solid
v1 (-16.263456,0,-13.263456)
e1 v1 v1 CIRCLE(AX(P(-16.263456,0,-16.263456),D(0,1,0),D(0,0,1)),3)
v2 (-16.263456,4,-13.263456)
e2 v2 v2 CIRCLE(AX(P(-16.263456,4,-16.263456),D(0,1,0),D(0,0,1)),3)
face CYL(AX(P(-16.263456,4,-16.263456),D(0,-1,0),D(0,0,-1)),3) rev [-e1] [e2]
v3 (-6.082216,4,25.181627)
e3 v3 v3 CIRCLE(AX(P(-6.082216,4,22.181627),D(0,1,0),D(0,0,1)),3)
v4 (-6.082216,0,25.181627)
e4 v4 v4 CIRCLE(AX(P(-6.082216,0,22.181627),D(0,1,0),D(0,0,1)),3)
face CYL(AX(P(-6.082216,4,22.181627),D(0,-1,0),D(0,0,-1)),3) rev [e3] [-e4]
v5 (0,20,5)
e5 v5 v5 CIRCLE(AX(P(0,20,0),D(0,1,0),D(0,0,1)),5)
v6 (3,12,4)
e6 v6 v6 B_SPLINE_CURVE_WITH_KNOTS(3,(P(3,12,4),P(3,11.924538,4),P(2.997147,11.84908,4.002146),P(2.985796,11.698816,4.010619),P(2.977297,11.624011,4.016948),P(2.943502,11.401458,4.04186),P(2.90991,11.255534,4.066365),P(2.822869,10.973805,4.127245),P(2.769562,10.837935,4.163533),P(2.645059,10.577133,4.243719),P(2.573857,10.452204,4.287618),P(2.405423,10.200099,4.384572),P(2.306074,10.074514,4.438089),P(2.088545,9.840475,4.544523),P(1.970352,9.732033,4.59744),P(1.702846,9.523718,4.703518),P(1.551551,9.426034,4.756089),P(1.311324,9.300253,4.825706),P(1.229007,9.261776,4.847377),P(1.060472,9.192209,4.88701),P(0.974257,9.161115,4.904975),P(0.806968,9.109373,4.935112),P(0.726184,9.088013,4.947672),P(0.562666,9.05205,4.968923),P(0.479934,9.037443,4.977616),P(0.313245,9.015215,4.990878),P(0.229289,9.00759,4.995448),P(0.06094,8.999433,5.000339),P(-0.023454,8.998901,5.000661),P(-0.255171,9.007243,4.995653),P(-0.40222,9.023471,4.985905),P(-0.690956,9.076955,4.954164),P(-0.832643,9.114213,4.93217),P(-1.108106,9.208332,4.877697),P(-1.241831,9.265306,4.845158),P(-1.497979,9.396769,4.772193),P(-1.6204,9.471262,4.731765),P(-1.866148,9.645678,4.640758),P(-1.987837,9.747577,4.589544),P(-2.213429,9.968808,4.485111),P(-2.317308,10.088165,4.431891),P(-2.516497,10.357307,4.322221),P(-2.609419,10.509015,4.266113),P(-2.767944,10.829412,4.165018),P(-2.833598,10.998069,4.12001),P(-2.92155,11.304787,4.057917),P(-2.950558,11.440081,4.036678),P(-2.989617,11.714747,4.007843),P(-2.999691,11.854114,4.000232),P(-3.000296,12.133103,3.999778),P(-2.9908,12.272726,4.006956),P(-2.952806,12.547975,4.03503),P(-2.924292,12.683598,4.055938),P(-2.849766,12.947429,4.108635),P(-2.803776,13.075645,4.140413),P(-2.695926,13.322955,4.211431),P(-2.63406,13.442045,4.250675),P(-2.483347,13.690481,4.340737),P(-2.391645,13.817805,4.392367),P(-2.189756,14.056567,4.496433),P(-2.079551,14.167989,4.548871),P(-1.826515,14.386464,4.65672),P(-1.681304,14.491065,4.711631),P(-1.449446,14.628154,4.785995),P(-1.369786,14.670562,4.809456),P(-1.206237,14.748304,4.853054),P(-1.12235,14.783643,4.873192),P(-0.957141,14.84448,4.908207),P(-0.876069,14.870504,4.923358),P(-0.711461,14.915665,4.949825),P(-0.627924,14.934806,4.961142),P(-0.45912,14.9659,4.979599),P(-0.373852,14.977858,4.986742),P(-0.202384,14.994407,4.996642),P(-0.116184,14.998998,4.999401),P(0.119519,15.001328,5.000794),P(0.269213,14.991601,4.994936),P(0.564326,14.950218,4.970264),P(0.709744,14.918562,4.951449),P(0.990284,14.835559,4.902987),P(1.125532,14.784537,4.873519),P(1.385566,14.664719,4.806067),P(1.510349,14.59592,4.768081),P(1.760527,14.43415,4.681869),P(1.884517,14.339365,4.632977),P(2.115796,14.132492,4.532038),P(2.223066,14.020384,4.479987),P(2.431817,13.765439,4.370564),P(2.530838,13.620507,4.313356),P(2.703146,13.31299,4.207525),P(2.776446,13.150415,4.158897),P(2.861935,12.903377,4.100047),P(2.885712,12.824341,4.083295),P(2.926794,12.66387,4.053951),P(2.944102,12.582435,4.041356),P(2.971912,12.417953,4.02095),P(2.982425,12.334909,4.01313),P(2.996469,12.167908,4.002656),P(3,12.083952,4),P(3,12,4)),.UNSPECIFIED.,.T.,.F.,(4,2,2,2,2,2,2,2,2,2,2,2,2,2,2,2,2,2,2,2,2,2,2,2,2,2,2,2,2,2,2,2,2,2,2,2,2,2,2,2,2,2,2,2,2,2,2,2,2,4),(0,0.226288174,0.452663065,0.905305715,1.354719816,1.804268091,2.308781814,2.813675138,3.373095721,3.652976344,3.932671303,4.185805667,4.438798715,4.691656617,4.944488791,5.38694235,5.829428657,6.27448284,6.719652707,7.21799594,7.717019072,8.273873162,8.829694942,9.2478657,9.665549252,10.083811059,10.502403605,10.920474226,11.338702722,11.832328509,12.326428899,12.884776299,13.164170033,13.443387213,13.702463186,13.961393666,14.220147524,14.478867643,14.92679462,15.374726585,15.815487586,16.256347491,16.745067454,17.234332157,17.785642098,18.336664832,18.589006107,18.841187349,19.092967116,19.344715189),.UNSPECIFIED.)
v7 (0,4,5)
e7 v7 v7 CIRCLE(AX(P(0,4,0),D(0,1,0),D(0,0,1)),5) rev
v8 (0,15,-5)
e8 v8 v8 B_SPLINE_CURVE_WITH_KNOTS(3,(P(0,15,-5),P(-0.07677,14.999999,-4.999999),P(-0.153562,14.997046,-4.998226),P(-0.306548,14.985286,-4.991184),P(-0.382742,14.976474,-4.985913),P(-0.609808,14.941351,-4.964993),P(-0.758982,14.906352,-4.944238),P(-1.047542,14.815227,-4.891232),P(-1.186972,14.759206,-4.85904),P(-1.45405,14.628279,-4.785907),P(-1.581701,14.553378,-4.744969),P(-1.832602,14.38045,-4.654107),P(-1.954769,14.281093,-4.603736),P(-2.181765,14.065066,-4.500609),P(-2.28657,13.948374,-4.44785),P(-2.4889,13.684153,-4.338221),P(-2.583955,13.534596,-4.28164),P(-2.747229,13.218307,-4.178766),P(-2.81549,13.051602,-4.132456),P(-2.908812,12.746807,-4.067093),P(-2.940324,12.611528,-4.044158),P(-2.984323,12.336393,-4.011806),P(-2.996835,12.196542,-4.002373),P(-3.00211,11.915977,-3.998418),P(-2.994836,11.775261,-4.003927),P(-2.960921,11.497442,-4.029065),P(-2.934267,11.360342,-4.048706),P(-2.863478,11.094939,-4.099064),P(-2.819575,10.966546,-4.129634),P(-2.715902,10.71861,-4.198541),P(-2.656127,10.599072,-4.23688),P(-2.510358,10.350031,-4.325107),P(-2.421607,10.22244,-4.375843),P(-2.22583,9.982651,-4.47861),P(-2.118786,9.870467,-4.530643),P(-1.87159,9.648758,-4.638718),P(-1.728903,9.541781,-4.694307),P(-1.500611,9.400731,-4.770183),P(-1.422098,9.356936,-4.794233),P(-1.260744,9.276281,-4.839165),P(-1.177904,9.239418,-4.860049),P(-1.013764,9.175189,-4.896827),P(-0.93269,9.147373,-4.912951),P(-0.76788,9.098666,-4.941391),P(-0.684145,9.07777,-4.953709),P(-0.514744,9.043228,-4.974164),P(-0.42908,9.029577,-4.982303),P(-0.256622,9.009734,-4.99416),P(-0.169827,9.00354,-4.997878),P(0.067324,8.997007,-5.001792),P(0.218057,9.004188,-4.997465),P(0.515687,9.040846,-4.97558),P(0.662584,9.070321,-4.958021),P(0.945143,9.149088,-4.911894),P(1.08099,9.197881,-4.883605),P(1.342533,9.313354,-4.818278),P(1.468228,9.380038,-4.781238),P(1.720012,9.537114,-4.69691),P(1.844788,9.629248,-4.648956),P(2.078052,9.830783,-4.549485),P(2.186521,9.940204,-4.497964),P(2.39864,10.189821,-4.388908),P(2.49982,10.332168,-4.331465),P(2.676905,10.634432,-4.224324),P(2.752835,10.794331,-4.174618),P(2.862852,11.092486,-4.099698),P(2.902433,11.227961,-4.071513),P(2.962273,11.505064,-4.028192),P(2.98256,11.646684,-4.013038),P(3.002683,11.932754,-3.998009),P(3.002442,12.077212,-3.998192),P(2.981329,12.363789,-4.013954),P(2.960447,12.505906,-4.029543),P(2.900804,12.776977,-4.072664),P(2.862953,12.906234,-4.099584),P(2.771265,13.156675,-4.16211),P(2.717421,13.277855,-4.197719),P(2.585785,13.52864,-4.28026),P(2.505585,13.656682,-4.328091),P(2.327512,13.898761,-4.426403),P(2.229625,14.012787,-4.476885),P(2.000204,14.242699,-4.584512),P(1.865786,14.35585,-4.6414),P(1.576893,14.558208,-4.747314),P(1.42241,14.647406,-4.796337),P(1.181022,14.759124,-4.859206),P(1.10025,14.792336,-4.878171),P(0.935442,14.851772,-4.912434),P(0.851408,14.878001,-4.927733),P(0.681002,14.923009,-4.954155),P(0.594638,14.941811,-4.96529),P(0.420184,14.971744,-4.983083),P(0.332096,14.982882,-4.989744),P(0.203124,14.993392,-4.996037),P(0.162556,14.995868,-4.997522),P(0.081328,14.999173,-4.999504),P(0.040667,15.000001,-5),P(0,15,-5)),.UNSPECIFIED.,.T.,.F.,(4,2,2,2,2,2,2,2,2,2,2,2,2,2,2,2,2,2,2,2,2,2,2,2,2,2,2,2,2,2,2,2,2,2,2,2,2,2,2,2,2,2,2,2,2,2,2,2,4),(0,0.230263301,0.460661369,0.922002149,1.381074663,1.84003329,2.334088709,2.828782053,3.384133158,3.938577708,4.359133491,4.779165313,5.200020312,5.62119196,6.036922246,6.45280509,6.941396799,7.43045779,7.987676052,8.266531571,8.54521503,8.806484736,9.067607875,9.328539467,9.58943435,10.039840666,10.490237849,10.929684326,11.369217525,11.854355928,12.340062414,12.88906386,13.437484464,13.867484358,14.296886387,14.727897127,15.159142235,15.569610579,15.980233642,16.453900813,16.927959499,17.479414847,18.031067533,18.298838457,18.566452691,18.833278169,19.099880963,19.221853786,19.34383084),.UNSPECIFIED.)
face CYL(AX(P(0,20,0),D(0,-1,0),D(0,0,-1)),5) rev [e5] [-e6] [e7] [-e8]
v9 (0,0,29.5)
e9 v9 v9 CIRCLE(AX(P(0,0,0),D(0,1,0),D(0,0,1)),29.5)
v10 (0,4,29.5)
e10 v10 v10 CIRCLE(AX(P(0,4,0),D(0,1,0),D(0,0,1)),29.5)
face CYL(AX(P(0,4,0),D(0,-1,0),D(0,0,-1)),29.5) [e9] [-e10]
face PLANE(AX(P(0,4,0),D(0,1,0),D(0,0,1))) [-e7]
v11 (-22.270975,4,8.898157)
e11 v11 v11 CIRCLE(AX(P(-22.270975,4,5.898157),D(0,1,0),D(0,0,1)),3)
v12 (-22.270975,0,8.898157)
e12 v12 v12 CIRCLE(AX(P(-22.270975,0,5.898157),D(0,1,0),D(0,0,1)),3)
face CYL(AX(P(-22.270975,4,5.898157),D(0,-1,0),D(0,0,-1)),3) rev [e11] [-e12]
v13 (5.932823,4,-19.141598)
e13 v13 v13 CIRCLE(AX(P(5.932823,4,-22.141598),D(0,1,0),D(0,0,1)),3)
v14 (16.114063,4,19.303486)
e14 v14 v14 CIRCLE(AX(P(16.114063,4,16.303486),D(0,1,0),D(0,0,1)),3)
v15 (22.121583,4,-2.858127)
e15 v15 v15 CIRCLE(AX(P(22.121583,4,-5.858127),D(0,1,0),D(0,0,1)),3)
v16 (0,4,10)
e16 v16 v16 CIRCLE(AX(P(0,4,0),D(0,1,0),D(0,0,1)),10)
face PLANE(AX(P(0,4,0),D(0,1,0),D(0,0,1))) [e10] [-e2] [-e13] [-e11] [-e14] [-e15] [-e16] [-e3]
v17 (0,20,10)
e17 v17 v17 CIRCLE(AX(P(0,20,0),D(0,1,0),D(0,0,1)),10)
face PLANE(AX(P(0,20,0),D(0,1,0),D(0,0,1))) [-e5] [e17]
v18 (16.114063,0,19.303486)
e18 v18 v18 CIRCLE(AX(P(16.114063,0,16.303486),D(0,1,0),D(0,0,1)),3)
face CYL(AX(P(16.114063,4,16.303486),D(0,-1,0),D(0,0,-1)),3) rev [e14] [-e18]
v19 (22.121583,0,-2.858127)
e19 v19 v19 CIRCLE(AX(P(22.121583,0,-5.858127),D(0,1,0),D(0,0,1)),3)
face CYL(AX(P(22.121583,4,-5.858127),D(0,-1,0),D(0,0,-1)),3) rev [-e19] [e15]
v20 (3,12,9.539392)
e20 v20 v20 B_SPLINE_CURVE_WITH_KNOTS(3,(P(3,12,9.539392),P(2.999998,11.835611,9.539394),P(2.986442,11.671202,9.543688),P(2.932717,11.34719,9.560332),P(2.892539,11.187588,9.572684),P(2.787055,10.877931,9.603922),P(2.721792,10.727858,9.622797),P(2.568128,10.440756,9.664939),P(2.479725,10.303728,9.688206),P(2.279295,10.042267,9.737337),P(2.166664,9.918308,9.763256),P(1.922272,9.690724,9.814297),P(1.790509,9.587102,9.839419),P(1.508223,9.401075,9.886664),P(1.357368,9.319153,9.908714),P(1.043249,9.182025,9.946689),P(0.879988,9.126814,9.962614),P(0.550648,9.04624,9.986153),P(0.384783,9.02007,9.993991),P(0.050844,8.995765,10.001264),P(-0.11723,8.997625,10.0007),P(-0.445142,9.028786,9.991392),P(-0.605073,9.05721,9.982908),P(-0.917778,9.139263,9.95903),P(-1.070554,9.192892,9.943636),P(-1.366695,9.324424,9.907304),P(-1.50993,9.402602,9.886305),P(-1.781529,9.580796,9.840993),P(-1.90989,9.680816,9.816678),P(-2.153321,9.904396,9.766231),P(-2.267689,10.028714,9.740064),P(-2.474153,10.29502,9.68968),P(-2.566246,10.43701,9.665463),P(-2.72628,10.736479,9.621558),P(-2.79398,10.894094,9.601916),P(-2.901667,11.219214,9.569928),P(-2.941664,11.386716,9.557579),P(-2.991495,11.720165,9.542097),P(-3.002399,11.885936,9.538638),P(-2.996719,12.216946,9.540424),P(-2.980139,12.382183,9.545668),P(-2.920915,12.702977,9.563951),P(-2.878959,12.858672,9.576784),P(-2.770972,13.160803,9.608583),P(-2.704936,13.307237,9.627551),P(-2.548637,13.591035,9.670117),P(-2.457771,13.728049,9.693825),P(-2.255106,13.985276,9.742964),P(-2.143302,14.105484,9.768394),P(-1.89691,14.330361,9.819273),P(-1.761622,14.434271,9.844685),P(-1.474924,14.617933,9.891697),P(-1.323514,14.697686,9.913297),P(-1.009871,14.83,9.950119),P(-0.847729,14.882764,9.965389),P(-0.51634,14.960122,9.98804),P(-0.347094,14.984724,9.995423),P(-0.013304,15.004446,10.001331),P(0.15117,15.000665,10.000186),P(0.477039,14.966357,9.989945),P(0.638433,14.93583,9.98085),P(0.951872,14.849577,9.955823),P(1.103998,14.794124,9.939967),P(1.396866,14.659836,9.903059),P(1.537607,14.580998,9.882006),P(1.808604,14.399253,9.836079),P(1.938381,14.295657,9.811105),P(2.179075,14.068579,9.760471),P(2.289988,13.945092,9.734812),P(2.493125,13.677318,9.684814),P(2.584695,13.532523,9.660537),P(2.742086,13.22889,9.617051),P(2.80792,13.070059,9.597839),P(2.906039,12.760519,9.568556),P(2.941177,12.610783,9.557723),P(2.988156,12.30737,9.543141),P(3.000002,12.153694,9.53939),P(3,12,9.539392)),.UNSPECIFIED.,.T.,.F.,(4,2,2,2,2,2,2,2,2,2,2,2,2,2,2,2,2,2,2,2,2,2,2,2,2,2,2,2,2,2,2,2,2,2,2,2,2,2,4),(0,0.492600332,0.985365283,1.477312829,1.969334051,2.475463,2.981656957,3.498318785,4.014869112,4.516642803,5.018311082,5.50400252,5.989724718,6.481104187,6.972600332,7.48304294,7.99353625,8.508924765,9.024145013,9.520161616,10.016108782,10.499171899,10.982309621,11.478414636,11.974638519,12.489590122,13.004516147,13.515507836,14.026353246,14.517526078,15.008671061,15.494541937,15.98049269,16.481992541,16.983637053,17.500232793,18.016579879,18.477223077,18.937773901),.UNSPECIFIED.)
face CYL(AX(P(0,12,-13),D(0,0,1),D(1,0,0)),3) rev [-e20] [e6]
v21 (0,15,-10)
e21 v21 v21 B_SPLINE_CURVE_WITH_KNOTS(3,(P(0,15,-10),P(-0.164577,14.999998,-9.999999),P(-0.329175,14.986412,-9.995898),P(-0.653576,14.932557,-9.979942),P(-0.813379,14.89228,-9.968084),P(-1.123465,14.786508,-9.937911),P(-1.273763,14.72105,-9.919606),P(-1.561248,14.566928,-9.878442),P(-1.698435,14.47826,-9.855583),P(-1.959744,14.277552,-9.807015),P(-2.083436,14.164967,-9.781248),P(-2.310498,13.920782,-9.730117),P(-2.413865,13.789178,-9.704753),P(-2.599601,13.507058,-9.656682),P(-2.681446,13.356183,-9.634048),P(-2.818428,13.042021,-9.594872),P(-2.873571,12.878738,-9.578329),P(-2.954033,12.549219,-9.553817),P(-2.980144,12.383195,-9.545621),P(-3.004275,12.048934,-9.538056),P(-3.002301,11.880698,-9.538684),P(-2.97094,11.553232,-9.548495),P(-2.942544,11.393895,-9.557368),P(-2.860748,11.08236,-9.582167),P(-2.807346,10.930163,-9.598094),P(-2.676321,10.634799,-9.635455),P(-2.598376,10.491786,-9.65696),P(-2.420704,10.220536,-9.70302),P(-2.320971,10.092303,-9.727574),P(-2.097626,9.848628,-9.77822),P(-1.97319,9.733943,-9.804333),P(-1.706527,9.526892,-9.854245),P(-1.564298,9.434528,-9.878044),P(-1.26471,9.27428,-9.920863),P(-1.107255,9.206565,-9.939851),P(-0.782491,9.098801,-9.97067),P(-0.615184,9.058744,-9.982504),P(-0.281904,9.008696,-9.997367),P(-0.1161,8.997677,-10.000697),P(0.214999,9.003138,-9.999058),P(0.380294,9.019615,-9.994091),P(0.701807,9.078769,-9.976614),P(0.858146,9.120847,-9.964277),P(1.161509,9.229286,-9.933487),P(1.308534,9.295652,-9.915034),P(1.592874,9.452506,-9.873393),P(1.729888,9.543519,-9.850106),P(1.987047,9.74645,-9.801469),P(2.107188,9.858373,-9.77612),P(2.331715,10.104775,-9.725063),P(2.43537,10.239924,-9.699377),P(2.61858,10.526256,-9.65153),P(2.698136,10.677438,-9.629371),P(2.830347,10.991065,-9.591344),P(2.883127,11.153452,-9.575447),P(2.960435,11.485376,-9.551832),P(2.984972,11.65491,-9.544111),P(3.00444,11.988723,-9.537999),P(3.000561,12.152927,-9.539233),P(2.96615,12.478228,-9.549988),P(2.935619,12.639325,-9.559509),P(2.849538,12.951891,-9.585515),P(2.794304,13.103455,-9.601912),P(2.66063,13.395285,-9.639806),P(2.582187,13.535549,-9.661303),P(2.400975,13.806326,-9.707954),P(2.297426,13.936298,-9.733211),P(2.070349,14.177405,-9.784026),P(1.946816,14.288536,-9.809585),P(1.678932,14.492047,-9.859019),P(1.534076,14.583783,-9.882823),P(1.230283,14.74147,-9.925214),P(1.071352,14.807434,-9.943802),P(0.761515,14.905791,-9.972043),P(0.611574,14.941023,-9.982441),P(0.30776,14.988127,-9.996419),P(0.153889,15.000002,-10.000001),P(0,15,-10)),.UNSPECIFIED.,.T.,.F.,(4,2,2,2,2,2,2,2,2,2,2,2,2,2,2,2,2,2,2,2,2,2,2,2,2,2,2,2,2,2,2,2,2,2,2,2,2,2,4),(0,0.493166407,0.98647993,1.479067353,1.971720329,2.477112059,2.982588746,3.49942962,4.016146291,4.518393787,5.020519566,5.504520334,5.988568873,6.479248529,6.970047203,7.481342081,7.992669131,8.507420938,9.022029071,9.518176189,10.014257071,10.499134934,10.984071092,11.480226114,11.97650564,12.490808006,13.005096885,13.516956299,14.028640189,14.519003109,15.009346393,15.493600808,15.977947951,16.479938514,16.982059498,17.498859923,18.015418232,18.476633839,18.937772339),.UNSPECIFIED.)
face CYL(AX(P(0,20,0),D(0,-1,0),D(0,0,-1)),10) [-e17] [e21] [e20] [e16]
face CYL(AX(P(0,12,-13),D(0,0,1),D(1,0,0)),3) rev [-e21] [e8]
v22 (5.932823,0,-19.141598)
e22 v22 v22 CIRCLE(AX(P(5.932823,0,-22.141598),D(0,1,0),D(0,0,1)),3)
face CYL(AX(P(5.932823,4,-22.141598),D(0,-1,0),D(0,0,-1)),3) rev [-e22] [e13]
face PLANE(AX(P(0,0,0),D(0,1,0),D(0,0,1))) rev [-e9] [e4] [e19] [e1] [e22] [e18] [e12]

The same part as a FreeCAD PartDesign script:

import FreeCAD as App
import Part
import Sketcher
from FreeCAD import Vector
Q = App.Units.Quantity

doc = App.newDocument("Part")
body = doc.addObject("PartDesign::Body", "Body")

# Sketch on XZ plane
sketch1 = body.newObject("Sketcher::SketchObject", "Sketch")
sketch1.AttachmentSupport = (doc.getObject("XZ_Plane"), [""])
sketch1.MapMode = "FlatFace"
sketch1.addGeometry(Part.Circle(Vector(0, 0, 0), Vector(0, 0, 1), 29.5), False)
sketch1.addGeometry(Part.Circle(Vector(-16.263456, -16.263456, 0), Vector(0, 0, 1), 3), False)
sketch1.addGeometry(Part.Circle(Vector(-22.270975, 5.898157, 0), Vector(0, 0, 1), 3), False)
sketch1.addGeometry(Part.Circle(Vector(-6.082216, 22.181627, 0), Vector(0, 0, 1), 3), False)
sketch1.addGeometry(Part.Circle(Vector(5.932823, -22.141598, 0), Vector(0, 0, 1), 3), False)
sketch1.addGeometry(Part.Circle(Vector(22.121583, -5.858127, 0), Vector(0, 0, 1), 3), False)
sketch1.addGeometry(Part.Circle(Vector(16.114063, 16.303486, 0), Vector(0, 0, 1), 3), False)
sketch1.addConstraint(Sketcher.Constraint("Coincident", 0, 3, -1, 1))
sketch1.addConstraint(Sketcher.Constraint("Equal", 1, 2))
sketch1.addConstraint(Sketcher.Constraint("Equal", 2, 3))
sketch1.addConstraint(Sketcher.Constraint("Equal", 3, 4))
sketch1.addConstraint(Sketcher.Constraint("Equal", 4, 5))
sketch1.addConstraint(Sketcher.Constraint("Equal", 5, 6))
sketch1.addConstraint(Sketcher.Constraint("Diameter", 0, Q("59 mm")))
sketch1.addConstraint(Sketcher.Constraint("Diameter", 1, Q("6 mm")))
sketch1.addConstraint(Sketcher.Constraint("DistanceX", 2, 3, 4, 3, Q("28.203799 mm")))
sketch1.addConstraint(Sketcher.Constraint("DistanceX", 3, 3, 5, 3, Q("28.203799 mm")))
sketch1.addConstraint(Sketcher.Constraint("DistanceX", 2, 3, 1, 3, Q("6.007519 mm")))
sketch1.addConstraint(Sketcher.Constraint("DistanceX", 2, 3, 3, 3, Q("16.18876 mm")))
sketch1.addConstraint(Sketcher.Constraint("DistanceY", 2, 3, 3, 3, Q("16.283471 mm")))
sketch1.addConstraint(Sketcher.Constraint("DistanceY", 4, 3, 1, 3, Q("5.878142 mm")))
sketch1.addConstraint(Sketcher.Constraint("DistanceY", 4, 3, 5, 3, Q("16.283471 mm")))
sketch1.addConstraint(Sketcher.Constraint("DistanceX", 3, 3, 6, 3, Q("22.196279 mm")))
sketch1.addConstraint(Sketcher.Constraint("DistanceY", 6, 3, 3, 3, Q("5.878142 mm")))
sketch1.addConstraint(Sketcher.Constraint("DistanceX", 1, 3, -1, 1, Q("16.263456 mm")))
sketch1.addConstraint(Sketcher.Constraint("DistanceY", 1, 3, -1, 1, Q("16.263456 mm")))
sketch1.addConstraint(Sketcher.Constraint("DistanceY", -1, 1, 2, 3, Q("5.898157 mm")))
pad1 = body.newObject("PartDesign::Pad", "Pad")
pad1.Profile = sketch1
pad1.Length = 4
pad1.Reversed = True

# Sketch on XZ plane
sketch2 = body.newObject("Sketcher::SketchObject", "Sketch001")
sketch2.AttachmentSupport = (doc.getObject("XZ_Plane"), [""])
sketch2.MapMode = "FlatFace"
sketch2.AttachmentOffset = App.Placement(Vector(0, 0, -4), App.Rotation())
sketch2.addGeometry(Part.Circle(Vector(0, 0, 0), Vector(0, 0, 1), 10), False)
sketch2.addGeometry(Part.Circle(Vector(0, 0, 0), Vector(0, 0, 1), 5), False)
sketch2.addConstraint(Sketcher.Constraint("Coincident", 0, 3, -1, 1))
sketch2.addConstraint(Sketcher.Constraint("Coincident", 1, 3, -1, 1))
sketch2.addConstraint(Sketcher.Constraint("Diameter", 0, Q("20 mm")))
sketch2.addConstraint(Sketcher.Constraint("Diameter", 1, Q("10 mm")))
pad2 = body.newObject("PartDesign::Pad", "Pad001")
pad2.Profile = sketch2
pad2.Length = 16
pad2.Reversed = True

# Sketch on XY plane
sketch3 = body.newObject("Sketcher::SketchObject", "Sketch002")
sketch3.AttachmentSupport = (doc.getObject("XY_Plane"), [""])
sketch3.MapMode = "FlatFace"
sketch3.addGeometry(Part.Circle(Vector(0, 12, 0), Vector(0, 0, 1), 3), False)
sketch3.addConstraint(Sketcher.Constraint("PointOnObject", 0, 3, -2))
sketch3.addConstraint(Sketcher.Constraint("Diameter", 0, Q("6 mm")))
sketch3.addConstraint(Sketcher.Constraint("DistanceY", -1, 1, 0, 3, Q("12 mm")))
pocket1 = body.newObject("PartDesign::Pocket", "Pocket")
pocket1.Profile = sketch3
pocket1.Length = 26
pocket1.Midplane = True

doc.recompute()
